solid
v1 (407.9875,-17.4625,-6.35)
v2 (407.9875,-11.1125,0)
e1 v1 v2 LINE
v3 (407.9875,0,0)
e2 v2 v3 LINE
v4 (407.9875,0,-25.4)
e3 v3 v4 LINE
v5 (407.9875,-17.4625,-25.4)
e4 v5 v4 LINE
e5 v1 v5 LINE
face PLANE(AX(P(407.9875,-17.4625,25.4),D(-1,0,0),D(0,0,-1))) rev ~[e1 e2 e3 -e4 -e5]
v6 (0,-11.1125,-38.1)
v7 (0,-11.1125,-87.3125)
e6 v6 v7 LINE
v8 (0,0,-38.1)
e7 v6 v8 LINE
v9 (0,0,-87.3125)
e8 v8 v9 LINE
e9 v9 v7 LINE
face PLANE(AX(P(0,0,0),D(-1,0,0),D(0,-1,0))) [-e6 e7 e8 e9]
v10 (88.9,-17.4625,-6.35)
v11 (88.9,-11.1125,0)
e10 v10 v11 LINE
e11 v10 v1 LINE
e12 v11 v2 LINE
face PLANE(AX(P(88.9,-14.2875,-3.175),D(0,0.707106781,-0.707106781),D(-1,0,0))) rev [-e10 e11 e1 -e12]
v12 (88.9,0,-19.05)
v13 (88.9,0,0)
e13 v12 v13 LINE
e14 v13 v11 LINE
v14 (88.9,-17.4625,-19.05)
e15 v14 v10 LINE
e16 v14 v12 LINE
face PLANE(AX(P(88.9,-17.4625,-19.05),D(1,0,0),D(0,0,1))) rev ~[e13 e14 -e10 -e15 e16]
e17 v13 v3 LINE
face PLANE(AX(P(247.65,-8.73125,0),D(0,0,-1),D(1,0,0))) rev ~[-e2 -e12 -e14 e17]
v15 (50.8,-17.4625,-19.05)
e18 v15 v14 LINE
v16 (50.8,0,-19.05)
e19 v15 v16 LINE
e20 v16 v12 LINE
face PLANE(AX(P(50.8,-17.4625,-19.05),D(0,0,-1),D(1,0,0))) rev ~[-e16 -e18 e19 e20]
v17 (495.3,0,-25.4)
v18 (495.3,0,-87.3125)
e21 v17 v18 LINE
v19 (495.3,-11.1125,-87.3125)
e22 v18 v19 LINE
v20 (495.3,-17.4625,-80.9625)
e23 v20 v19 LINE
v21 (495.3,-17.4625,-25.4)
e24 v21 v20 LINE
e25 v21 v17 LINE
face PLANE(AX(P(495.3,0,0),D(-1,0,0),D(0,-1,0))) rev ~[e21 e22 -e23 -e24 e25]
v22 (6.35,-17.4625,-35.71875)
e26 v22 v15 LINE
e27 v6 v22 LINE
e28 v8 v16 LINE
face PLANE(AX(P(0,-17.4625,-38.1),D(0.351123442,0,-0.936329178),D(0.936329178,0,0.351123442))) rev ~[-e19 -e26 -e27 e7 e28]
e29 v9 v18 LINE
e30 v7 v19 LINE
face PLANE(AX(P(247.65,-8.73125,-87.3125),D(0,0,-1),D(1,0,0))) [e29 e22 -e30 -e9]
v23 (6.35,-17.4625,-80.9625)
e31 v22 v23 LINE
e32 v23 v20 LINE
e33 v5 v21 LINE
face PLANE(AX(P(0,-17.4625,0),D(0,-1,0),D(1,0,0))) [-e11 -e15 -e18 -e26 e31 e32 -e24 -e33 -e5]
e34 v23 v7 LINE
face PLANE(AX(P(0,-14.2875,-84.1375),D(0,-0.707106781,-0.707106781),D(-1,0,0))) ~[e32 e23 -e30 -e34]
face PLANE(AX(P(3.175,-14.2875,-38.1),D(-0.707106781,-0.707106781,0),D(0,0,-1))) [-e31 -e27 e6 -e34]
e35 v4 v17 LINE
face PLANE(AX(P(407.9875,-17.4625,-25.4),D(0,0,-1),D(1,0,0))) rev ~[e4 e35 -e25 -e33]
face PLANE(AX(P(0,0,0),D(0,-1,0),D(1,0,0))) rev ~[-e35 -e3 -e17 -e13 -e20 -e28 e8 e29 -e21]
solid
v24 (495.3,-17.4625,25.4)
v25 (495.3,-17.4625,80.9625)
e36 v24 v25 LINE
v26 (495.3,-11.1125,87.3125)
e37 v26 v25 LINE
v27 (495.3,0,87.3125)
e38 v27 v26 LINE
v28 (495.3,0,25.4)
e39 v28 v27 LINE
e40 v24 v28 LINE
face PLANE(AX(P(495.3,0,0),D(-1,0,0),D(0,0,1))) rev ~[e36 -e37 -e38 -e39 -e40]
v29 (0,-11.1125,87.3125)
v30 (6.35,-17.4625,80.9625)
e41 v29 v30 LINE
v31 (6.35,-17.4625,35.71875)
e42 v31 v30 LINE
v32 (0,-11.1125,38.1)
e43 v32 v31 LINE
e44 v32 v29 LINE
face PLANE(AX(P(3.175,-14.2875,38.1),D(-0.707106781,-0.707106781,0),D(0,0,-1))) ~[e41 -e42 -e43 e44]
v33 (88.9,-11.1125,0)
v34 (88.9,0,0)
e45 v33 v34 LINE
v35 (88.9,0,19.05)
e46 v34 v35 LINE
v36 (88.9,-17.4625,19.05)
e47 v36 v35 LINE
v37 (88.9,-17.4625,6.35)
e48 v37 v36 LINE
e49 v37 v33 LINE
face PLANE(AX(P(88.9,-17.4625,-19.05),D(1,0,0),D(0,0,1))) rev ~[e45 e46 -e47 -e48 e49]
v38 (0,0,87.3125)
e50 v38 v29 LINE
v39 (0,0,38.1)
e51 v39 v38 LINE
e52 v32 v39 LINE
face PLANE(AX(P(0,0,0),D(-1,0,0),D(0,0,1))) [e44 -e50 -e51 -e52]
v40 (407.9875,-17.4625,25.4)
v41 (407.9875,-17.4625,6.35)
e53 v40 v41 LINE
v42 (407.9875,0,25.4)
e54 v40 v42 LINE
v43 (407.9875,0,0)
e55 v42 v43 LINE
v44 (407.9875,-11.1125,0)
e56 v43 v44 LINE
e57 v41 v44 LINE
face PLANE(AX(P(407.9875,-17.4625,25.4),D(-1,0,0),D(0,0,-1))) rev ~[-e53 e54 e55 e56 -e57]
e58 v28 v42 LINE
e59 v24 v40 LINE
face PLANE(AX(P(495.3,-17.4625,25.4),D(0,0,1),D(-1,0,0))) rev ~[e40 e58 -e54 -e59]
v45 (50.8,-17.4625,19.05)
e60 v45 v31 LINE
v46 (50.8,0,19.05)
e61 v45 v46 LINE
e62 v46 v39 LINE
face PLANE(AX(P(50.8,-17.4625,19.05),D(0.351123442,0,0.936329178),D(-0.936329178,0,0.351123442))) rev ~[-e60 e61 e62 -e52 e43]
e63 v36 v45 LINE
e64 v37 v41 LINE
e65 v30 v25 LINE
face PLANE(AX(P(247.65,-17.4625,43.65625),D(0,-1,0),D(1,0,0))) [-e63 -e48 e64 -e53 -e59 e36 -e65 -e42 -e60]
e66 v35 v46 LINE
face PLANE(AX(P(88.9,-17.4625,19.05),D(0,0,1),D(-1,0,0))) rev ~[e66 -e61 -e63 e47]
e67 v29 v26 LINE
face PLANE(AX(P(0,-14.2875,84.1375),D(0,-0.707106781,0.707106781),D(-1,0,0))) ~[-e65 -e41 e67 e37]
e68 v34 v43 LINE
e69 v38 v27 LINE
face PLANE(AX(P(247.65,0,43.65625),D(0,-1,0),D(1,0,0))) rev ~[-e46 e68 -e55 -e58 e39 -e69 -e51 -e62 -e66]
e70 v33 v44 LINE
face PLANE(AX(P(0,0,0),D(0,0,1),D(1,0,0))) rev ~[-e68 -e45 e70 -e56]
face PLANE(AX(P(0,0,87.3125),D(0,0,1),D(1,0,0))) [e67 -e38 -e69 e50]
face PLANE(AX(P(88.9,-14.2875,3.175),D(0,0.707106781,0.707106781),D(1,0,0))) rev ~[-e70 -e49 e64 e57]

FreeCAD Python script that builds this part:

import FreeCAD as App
import Part
import Sketcher
Q = App.Units.Quantity


def edges_at(feature, points):
    """Names of the edges that pass closest to the given points."""
    edges = feature.Shape.Edges
    near = lambda p: min(range(len(edges)), key=lambda i: edges[i].distToShape(Part.Vertex(*p))[0])
    return sorted({f"Edge{near(p) + 1}" for p in points})

doc = App.newDocument("Part")
body = doc.addObject("PartDesign::Body", "Body")

sketch1 = body.newObject("Sketcher::SketchObject", "Sketch")
sketch1.AttachmentSupport = (doc.getObject("XZ_Plane"), [""])
sketch1.MapMode = "FlatFace"
sketch1.addGeometry(Part.LineSegment(App.Vector(0, 87, 0), App.Vector(0, 0, 0)), False)
sketch1.addGeometry(Part.LineSegment(App.Vector(0, 0, 0), App.Vector(495, 0, 0)), False)
sketch1.addGeometry(Part.LineSegment(App.Vector(495, 0, 0), App.Vector(495, 87, 0)), False)
sketch1.addGeometry(Part.LineSegment(App.Vector(495, 87, 0), App.Vector(0, 87, 0)), False)
sketch1.addConstraint(Sketcher.Constraint("Coincident", 0, 2, 1, 1))
sketch1.addConstraint(Sketcher.Constraint("Coincident", 1, 2, 2, 1))
sketch1.addConstraint(Sketcher.Constraint("Coincident", 2, 2, 3, 1))
sketch1.addConstraint(Sketcher.Constraint("Coincident", 3, 2, 0, 1))
sketch1.addConstraint(Sketcher.Constraint("Vertical", 0))
sketch1.addConstraint(Sketcher.Constraint("Horizontal", 1))
sketch1.addConstraint(Sketcher.Constraint("Vertical", 2))
sketch1.addConstraint(Sketcher.Constraint("Horizontal", 3))
sketch1.addConstraint(Sketcher.Constraint("Coincident", 0, 2, -1, 1))
sketch1.addConstraint(Sketcher.Constraint("DistanceX", 1, 1, 1, 2, Q("19.5 in")))
sketch1.addConstraint(Sketcher.Constraint("DistanceY", 0, 2, 0, 1, Q("3.4375 in")))
pad1 = body.newObject("PartDesign::Pad", "Pad")
pad1.Profile = sketch1
pad1.Length = Q("0.6875 in")
body2 = doc.addObject("PartDesign::Body", "Body001")

sketch2 = body2.newObject("Sketcher::SketchObject", "Sketch001")
sketch2.AttachmentSupport = (doc.getObject("XY_Plane001"), [""])
sketch2.MapMode = "FlatFace"
sketch2.addGeometry(Part.LineSegment(App.Vector(0, -17, 0), App.Vector(0, 0, 0)), False)
sketch2.addGeometry(Part.LineSegment(App.Vector(0, 0, 0), App.Vector(495, 0, 0)), False)
sketch2.addGeometry(Part.LineSegment(App.Vector(495, 0, 0), App.Vector(495, -17, 0)), False)
sketch2.addGeometry(Part.LineSegment(App.Vector(495, -17, 0), App.Vector(0, -17, 0)), False)
sketch2.addConstraint(Sketcher.Constraint("Coincident", 0, 2, 1, 1))
sketch2.addConstraint(Sketcher.Constraint("Coincident", 1, 2, 2, 1))
sketch2.addConstraint(Sketcher.Constraint("Coincident", 2, 2, 3, 1))
sketch2.addConstraint(Sketcher.Constraint("Coincident", 3, 2, 0, 1))
sketch2.addConstraint(Sketcher.Constraint("Vertical", 0))
sketch2.addConstraint(Sketcher.Constraint("Horizontal", 1))
sketch2.addConstraint(Sketcher.Constraint("Vertical", 2))
sketch2.addConstraint(Sketcher.Constraint("Horizontal", 3))
sketch2.addConstraint(Sketcher.Constraint("Coincident", 0, 2, -1, 1))
sketch2.addConstraint(Sketcher.Constraint("DistanceX", 1, 1, 1, 2, Q("19.5 in")))
sketch2.addConstraint(Sketcher.Constraint("DistanceY", 0, 1, 0, 2, Q("0.6875 in")))
pad2 = body2.newObject("PartDesign::Pad", "Pad001")
pad2.Profile = sketch2
pad2.Length = Q("3.4375 in")
pad2.Reversed = True
body3 = doc.addObject("PartDesign::Body", "Body002")
body3.AllowCompound = True

sketch3 = body3.newObject("Sketcher::SketchObject", "Sketch002")
sketch3.AttachmentSupport = (doc.getObject("XZ_Plane002"), [""])
sketch3.MapMode = "FlatFace"
sketch3.AttachmentOffset = App.Placement(App.Vector(0, 0, 0.6875 * 25.4), App.Rotation())
sketch3.addGeometry(Part.LineSegment(App.Vector(495, -25, 0), App.Vector(495, 25, 0)), False)
sketch3.addGeometry(Part.LineSegment(App.Vector(495, 25, 0), App.Vector(408, 25, 0)), False)
sketch3.addGeometry(Part.LineSegment(App.Vector(408, 25, 0), App.Vector(408, -25, 0)), False)
sketch3.addGeometry(Part.LineSegment(App.Vector(408, -25, 0), App.Vector(495, -25, 0)), False)
sketch3.addGeometry(Part.LineSegment(App.Vector(51, 19, 0), App.Vector(0, 38, 0)), False)
sketch3.addGeometry(Part.LineSegment(App.Vector(0, 38, 0), App.Vector(0, -38, 0)), False)
sketch3.addGeometry(Part.LineSegment(App.Vector(0, -38, 0), App.Vector(51, -19, 0)), False)
sketch3.addGeometry(Part.LineSegment(App.Vector(51, -19, 0), App.Vector(89, -19, 0)), False)
sketch3.addGeometry(Part.LineSegment(App.Vector(89, -19, 0), App.Vector(89, 19, 0)), False)
sketch3.addGeometry(Part.LineSegment(App.Vector(89, 19, 0), App.Vector(51, 19, 0)), False)
sketch3.addConstraint(Sketcher.Constraint("Coincident", 0, 2, 1, 1))
sketch3.addConstraint(Sketcher.Constraint("Coincident", 1, 2, 2, 1))
sketch3.addConstraint(Sketcher.Constraint("Coincident", 2, 2, 3, 1))
sketch3.addConstraint(Sketcher.Constraint("Coincident", 3, 2, 0, 1))
sketch3.addConstraint(Sketcher.Constraint("Coincident", 4, 2, 5, 1))
sketch3.addConstraint(Sketcher.Constraint("Coincident", 5, 2, 6, 1))
sketch3.addConstraint(Sketcher.Constraint("Coincident", 6, 2, 7, 1))
sketch3.addConstraint(Sketcher.Constraint("Coincident", 7, 2, 8, 1))
sketch3.addConstraint(Sketcher.Constraint("Coincident", 8, 2, 9, 1))
sketch3.addConstraint(Sketcher.Constraint("Coincident", 9, 2, 4, 1))
sketch3.addConstraint(Sketcher.Constraint("Vertical", 0))
sketch3.addConstraint(Sketcher.Constraint("Horizontal", 1))
sketch3.addConstraint(Sketcher.Constraint("Vertical", 2))
sketch3.addConstraint(Sketcher.Constraint("Horizontal", 3))
sketch3.addConstraint(Sketcher.Constraint("Vertical", 5))
sketch3.addConstraint(Sketcher.Constraint("Horizontal", 7))
sketch3.addConstraint(Sketcher.Constraint("Vertical", 8))
sketch3.addConstraint(Sketcher.Constraint("Horizontal", 9))
sketch3.addConstraint(Sketcher.Constraint("Symmetric", 4, 2, 5, 2, -1, 1))
sketch3.addConstraint(Sketcher.Constraint("Symmetric", 6, 2, 9, 2, -1))
sketch3.addConstraint(Sketcher.Constraint("Equal", 9, 8))
sketch3.addConstraint(Sketcher.Constraint("DistanceY", 0, 1, 0, 2, Q("2 in")))
sketch3.addConstraint(Sketcher.Constraint("DistanceY", 5, 2, 5, 1, Q("3 in")))
sketch3.addConstraint(Sketcher.Constraint("DistanceX", 7, 1, 7, 2, Q("1.5 in")))
sketch3.addConstraint(Sketcher.Constraint("DistanceY", -1, 1, 0, 2, Q("1 in")))
sketch3.addConstraint(Sketcher.Constraint("DistanceX", -1, 1, 6, 2, Q("2 in")))
sketch3.addConstraint(Sketcher.Constraint("DistanceX", -1, 1, 0, 2, Q("19.5 in")))
sketch3.addConstraint(Sketcher.Constraint("DistanceX", 1, 2, 1, 1, Q("3.4375 in")))
pad3 = body3.newObject("PartDesign::Pad", "Pad002")
pad3.Profile = sketch3
pad3.Length = Q("1 in")
pad3.Reversed = True
doc.recompute()

body4 = doc.addObject("PartDesign::Body", "Body003")
body4.BaseFeature = body3
boolean = body.newObject("PartDesign::Boolean", "Boolean")
boolean.Type = "Cut"
boolean.addObjects([body4])
doc.recompute()

chamfer = body.newObject("PartDesign::Chamfer", "Chamfer")
chamfer.Base = (boolean, edges_at(boolean, [(247.65, -17.462, 87.312), (248.444, -17.462, 0), (0, -17.462, 62.706)]))
chamfer.Size = Q("0.25 in")
doc.recompute()

boolean2 = body2.newObject("PartDesign::Boolean", "Boolean001")
boolean2.Type = "Cut"
boolean2.addObjects([body3])
doc.recompute()

chamfer2 = body2.newObject("PartDesign::Chamfer", "Chamfer001")
chamfer2.Base = (boolean2, edges_at(boolean2, [(247.65, -17.462, -87.312), (0, -17.462, -62.706)]))
chamfer2.Size = Q("0.25 in")
doc.recompute()

chamfer3 = body2.newObject("PartDesign::Chamfer", "Chamfer002")
chamfer3.Base = (chamfer2, edges_at(chamfer2, [(248.444, -17.462, 0)]))
chamfer3.Size = Q("0.25 in")

doc.recompute()
